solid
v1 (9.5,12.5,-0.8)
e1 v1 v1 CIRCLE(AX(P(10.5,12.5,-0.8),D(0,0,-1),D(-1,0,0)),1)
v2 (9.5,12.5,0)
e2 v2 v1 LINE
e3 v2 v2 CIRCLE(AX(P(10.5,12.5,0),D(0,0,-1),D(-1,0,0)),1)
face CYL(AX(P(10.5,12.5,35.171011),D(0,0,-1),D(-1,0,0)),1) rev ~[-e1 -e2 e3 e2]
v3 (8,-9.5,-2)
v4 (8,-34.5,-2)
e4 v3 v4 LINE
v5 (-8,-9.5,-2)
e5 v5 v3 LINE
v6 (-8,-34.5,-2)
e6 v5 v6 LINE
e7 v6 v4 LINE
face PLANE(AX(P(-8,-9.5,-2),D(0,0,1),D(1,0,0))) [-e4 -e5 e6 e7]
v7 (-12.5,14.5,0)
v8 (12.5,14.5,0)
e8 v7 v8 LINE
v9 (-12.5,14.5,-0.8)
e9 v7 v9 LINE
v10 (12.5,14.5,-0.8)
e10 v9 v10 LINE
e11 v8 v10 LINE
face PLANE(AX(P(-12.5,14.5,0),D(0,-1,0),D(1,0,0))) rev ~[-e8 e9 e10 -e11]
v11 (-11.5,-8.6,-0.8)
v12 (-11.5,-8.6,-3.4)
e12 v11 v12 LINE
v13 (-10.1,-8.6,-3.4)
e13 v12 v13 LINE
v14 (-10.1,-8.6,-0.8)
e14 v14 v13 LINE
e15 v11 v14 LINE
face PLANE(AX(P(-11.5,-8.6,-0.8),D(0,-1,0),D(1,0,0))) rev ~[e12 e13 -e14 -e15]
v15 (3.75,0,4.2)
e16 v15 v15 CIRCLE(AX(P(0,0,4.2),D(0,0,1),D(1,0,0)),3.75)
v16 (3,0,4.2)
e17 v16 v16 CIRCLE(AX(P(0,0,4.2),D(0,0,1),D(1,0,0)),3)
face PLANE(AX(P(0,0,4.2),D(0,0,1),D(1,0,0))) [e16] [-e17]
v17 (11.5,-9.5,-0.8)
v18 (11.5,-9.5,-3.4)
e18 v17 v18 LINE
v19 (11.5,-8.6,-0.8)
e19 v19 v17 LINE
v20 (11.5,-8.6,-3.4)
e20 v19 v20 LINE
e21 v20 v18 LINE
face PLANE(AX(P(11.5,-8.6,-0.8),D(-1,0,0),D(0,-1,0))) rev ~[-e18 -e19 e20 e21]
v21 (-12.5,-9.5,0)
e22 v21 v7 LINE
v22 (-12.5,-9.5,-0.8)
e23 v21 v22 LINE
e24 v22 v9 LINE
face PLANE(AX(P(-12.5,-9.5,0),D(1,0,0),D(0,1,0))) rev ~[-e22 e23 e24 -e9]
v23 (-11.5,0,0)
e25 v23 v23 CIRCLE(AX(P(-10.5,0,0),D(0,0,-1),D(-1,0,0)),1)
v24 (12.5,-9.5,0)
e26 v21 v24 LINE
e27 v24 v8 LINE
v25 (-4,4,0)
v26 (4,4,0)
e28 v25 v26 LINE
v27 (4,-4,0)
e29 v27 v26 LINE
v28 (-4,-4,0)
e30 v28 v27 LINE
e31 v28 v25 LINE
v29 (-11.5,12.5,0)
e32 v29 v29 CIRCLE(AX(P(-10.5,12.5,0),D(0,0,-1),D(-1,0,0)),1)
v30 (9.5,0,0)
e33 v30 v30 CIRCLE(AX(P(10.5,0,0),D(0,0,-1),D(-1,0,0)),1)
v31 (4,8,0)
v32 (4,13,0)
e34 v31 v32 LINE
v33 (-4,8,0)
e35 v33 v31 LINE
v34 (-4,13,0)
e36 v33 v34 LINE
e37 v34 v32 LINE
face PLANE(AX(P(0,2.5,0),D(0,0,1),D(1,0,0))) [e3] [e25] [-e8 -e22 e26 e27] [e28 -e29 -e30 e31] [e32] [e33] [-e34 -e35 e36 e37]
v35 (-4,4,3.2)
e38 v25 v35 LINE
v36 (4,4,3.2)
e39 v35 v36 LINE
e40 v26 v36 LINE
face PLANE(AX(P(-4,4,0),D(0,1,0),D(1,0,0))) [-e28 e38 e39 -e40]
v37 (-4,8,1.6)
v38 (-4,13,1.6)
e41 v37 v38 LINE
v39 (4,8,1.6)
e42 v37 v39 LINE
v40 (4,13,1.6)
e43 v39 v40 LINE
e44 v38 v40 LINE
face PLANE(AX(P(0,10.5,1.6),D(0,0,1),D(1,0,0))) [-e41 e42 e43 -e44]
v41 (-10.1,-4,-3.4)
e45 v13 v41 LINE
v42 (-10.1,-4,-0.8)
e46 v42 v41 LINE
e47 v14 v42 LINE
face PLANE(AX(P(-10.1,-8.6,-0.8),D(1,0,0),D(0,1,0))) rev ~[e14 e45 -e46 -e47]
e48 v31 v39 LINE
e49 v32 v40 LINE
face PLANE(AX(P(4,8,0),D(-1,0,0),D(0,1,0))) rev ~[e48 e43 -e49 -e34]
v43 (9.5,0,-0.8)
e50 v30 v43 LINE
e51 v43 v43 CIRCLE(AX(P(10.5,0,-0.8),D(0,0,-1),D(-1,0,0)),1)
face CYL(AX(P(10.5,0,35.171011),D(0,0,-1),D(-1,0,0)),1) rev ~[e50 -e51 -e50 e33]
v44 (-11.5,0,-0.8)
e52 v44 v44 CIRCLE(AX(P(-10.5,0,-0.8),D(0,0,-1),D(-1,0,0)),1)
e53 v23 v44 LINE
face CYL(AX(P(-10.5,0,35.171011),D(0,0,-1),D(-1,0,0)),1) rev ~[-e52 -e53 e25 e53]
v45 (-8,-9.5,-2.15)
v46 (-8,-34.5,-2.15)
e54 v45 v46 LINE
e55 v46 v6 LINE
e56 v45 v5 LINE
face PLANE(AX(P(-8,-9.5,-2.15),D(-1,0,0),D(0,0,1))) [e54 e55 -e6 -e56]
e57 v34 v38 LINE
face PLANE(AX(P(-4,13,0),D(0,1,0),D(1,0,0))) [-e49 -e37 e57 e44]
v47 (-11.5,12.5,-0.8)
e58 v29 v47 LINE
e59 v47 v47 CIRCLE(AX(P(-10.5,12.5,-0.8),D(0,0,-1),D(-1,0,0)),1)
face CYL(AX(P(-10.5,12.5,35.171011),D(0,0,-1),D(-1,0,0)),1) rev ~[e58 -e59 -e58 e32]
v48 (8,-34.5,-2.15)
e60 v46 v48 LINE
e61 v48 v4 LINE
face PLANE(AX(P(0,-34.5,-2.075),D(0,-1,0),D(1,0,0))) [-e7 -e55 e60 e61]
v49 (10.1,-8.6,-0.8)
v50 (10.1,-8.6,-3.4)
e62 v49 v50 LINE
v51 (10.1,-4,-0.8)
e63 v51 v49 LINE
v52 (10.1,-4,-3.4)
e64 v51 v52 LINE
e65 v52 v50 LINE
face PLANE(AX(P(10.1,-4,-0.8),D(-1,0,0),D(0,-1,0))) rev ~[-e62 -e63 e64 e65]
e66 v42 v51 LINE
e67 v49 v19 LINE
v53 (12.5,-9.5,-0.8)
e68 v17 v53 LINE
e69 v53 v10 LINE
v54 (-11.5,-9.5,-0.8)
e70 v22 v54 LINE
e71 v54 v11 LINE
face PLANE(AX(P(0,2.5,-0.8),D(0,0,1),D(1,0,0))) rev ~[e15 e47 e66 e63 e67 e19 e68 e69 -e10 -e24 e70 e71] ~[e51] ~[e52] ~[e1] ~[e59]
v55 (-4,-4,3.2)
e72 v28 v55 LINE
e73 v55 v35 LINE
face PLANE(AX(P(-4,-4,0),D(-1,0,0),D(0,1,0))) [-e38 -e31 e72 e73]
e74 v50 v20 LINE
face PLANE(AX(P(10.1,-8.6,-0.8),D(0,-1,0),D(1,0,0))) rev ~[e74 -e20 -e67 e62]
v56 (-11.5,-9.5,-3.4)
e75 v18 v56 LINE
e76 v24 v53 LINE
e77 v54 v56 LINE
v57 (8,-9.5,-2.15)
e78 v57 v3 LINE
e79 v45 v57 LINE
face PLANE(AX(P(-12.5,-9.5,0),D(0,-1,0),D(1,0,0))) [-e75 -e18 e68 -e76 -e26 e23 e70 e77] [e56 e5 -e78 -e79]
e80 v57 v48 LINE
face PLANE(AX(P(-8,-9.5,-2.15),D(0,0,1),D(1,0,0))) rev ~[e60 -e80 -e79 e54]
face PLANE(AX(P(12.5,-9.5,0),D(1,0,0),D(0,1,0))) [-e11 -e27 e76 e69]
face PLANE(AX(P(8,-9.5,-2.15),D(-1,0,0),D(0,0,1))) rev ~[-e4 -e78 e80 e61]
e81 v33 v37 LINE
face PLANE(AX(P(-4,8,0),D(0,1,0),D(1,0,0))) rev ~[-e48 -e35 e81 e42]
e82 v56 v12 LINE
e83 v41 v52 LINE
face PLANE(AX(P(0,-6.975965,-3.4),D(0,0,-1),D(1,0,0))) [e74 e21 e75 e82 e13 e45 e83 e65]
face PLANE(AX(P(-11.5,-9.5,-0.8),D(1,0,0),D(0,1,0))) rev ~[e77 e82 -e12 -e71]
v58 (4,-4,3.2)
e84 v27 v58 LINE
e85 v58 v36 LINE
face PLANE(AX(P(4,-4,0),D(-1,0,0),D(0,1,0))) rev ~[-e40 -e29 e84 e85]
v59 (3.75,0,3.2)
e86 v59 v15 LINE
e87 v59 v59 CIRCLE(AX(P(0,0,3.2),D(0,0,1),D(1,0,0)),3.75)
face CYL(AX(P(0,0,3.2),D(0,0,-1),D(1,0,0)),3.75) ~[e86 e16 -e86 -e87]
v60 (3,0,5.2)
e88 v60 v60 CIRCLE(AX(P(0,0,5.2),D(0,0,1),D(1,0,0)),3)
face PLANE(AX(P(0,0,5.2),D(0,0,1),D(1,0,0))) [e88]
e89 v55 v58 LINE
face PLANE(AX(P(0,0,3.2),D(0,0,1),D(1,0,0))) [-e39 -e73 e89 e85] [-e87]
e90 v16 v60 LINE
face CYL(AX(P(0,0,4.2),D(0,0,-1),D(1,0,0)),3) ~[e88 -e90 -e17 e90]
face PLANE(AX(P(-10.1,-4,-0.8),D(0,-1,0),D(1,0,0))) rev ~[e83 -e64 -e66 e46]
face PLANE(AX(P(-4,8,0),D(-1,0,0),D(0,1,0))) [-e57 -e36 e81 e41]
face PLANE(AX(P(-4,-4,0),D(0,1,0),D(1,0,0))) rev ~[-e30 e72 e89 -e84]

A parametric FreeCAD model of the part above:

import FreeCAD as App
import Part
import Sketcher

V = App.Vector

doc = App.newDocument("Part")
body = doc.addObject("PartDesign::Body", "Body")

# Sketch on XY plane
sketch1 = body.newObject("Sketcher::SketchObject", "Sketch")
sketch1.AttachmentSupport = (doc.getObject("XY_Plane"), [""])
sketch1.MapMode = "FlatFace"
sketch1.addGeometry(Part.LineSegment(V(-12.5, 14.5, 0), V(-12.5, -9.5, 0)), False)
sketch1.addGeometry(Part.LineSegment(V(-12.5, -9.5, 0), V(12.5, -9.5, 0)), False)
sketch1.addGeometry(Part.LineSegment(V(12.5, -9.5, 0), V(12.5, 14.5, 0)), False)
sketch1.addGeometry(Part.LineSegment(V(12.5, 14.5, 0), V(-12.5, 14.5, 0)), False)
sketch1.addConstraint(Sketcher.Constraint("Coincident", 0, 2, 1, 1))
sketch1.addConstraint(Sketcher.Constraint("Coincident", 1, 2, 2, 1))
sketch1.addConstraint(Sketcher.Constraint("Coincident", 2, 2, 3, 1))
sketch1.addConstraint(Sketcher.Constraint("Coincident", 3, 2, 0, 1))
sketch1.addConstraint(Sketcher.Constraint("Vertical", 0))
sketch1.addConstraint(Sketcher.Constraint("Horizontal", 1))
sketch1.addConstraint(Sketcher.Constraint("Vertical", 2))
sketch1.addConstraint(Sketcher.Constraint("Horizontal", 3))
sketch1.addConstraint(Sketcher.Constraint("DistanceX", 1, 1, 1, 2, 25.0))
sketch1.addConstraint(Sketcher.Constraint("DistanceY", 0, 2, 0, 1, 24.0))
sketch1.addConstraint(Sketcher.Constraint("DistanceX", 0, 2, -1, 1, 12.5))
sketch1.addConstraint(Sketcher.Constraint("DistanceY", 0, 2, -1, 1, 9.5))
pad1 = body.newObject("PartDesign::Pad", "Pad")
pad1.Profile = sketch1
pad1.Length = 0.8
pad1.Reversed = True

# Sketch on XY plane
sketch2 = body.newObject("Sketcher::SketchObject", "Sketch001")
sketch2.AttachmentSupport = (doc.getObject("XY_Plane"), [""])
sketch2.MapMode = "FlatFace"
sketch2.addGeometry(Part.LineSegment(V(-4, 4, 0), V(-4, -4, 0)), False)
sketch2.addGeometry(Part.LineSegment(V(-4, -4, 0), V(4, -4, 0)), False)
sketch2.addGeometry(Part.LineSegment(V(4, -4, 0), V(4, 4, 0)), False)
sketch2.addGeometry(Part.LineSegment(V(4, 4, 0), V(-4, 4, 0)), False)
sketch2.addConstraint(Sketcher.Constraint("Coincident", 0, 2, 1, 1))
sketch2.addConstraint(Sketcher.Constraint("Coincident", 1, 2, 2, 1))
sketch2.addConstraint(Sketcher.Constraint("Coincident", 2, 2, 3, 1))
sketch2.addConstraint(Sketcher.Constraint("Coincident", 3, 2, 0, 1))
sketch2.addConstraint(Sketcher.Constraint("Vertical", 0))
sketch2.addConstraint(Sketcher.Constraint("Horizontal", 1))
sketch2.addConstraint(Sketcher.Constraint("Vertical", 2))
sketch2.addConstraint(Sketcher.Constraint("Horizontal", 3))
sketch2.addConstraint(Sketcher.Constraint("Symmetric", 0, 2, 2, 2, -1, 1))
sketch2.addConstraint(Sketcher.Constraint("Equal", 3, 0))
sketch2.addConstraint(Sketcher.Constraint("DistanceX", 1, 1, 1, 2, 8.0))
pad2 = body.newObject("PartDesign::Pad", "Pad001")
pad2.Profile = sketch2
pad2.Length = 3.2

# Sketch on XY plane
sketch3 = body.newObject("Sketcher::SketchObject", "Sketch002")
sketch3.AttachmentSupport = (doc.getObject("XY_Plane"), [""])
sketch3.MapMode = "FlatFace"
sketch3.AttachmentOffset = App.Placement(V(0, 0, 3.2), App.Rotation())
sketch3.addGeometry(Part.Circle(V(0, 0, 0), V(0, 0, 1), 3.75), False)
sketch3.addConstraint(Sketcher.Constraint("Coincident", 0, 3, -1, 1))
sketch3.addConstraint(Sketcher.Constraint("Diameter", 0, 7.5))
pad3 = body.newObject("PartDesign::Pad", "Pad002")
pad3.Profile = sketch3
pad3.Length = 1

# Sketch on XY plane
sketch4 = body.newObject("Sketcher::SketchObject", "Sketch003")
sketch4.AttachmentSupport = (doc.getObject("XY_Plane"), [""])
sketch4.MapMode = "FlatFace"
sketch4.AttachmentOffset = App.Placement(V(0, 0, 4.2), App.Rotation())
sketch4.addGeometry(Part.Circle(V(0, 0, 0), V(0, 0, 1), 3), False)
sketch4.addConstraint(Sketcher.Constraint("Coincident", 0, 3, -1, 1))
sketch4.addConstraint(Sketcher.Constraint("Diameter", 0, 6.0))
pad4 = body.newObject("PartDesign::Pad", "Pad003")
pad4.Profile = sketch4
pad4.Length = 1

# Sketch on XY plane
sketch5 = body.newObject("Sketcher::SketchObject", "Sketch004")
sketch5.AttachmentSupport = (doc.getObject("XY_Plane"), [""])
sketch5.MapMode = "FlatFace"
sketch5.addGeometry(Part.Circle(V(-10.5, 12.5, 0), V(0, 0, 1), 1), False)
sketch5.addGeometry(Part.Circle(V(10.5, 12.5, 0), V(0, 0, 1), 1), False)
sketch5.addGeometry(Part.Circle(V(10.5, 0, 0), V(0, 0, 1), 1), False)
sketch5.addGeometry(Part.Circle(V(-10.5, 0, 0), V(0, 0, 1), 1), False)
sketch5.addConstraint(Sketcher.Constraint("Equal", 0, 1))
sketch5.addConstraint(Sketcher.Constraint("Equal", 1, 2))
sketch5.addConstraint(Sketcher.Constraint("Equal", 2, 3))
sketch5.addConstraint(Sketcher.Constraint("Symmetric", 2, 3, 3, 3, -1, 1))
sketch5.addConstraint(Sketcher.Constraint("Symmetric", 0, 3, 1, 3, -2))
sketch5.addConstraint(Sketcher.Constraint("PointOnObject", 2, 3, -1))
sketch5.addConstraint(Sketcher.Constraint("Vertical", 1, 3, 2, 3))
sketch5.addConstraint(Sketcher.Constraint("Diameter", 0, 2.0))
sketch5.addConstraint(Sketcher.Constraint("DistanceX", 0, 3, 1, 3, 21.0))
sketch5.addConstraint(Sketcher.Constraint("DistanceY", -1, 1, 0, 3, 12.5))
doc.recompute()
hole = body.newObject("PartDesign::Hole", "Hole")
hole.Profile = sketch5
hole.ThreadType = "None"
hole.Diameter = 2
hole.DepthType = "ThroughAll"

# Sketch on XY plane
sketch6 = body.newObject("Sketcher::SketchObject", "Sketch005")
sketch6.AttachmentSupport = (doc.getObject("XY_Plane"), [""])
sketch6.MapMode = "FlatFace"
sketch6.addGeometry(Part.LineSegment(V(-4, 13, 0), V(-4, 8, 0)), False)
sketch6.addGeometry(Part.LineSegment(V(-4, 8, 0), V(4, 8, 0)), False)
sketch6.addGeometry(Part.LineSegment(V(4, 8, 0), V(4, 13, 0)), False)
sketch6.addGeometry(Part.LineSegment(V(4, 13, 0), V(-4, 13, 0)), False)
sketch6.addConstraint(Sketcher.Constraint("Coincident", 0, 2, 1, 1))
sketch6.addConstraint(Sketcher.Constraint("Coincident", 1, 2, 2, 1))
sketch6.addConstraint(Sketcher.Constraint("Coincident", 2, 2, 3, 1))
sketch6.addConstraint(Sketcher.Constraint("Coincident", 3, 2, 0, 1))
sketch6.addConstraint(Sketcher.Constraint("Vertical", 0))
sketch6.addConstraint(Sketcher.Constraint("Horizontal", 1))
sketch6.addConstraint(Sketcher.Constraint("Vertical", 2))
sketch6.addConstraint(Sketcher.Constraint("Horizontal", 3))
sketch6.addConstraint(Sketcher.Constraint("DistanceX", 1, 1, 1, 2, 8.0))
sketch6.addConstraint(Sketcher.Constraint("DistanceY", 0, 2, 0, 1, 5.0))
sketch6.addConstraint(Sketcher.Constraint("DistanceX", 0, 2, -1, 1, 4.0))
sketch6.addConstraint(Sketcher.Constraint("DistanceY", -1, 1, 0, 2, 8.0))
pad5 = body.newObject("PartDesign::Pad", "Pad004")
pad5.Profile = sketch6
pad5.Length = 1.6

# Sketch on XY plane
sketch7 = body.newObject("Sketcher::SketchObject", "Sketch006")
sketch7.AttachmentSupport = (doc.getObject("XY_Plane"), [""])
sketch7.MapMode = "FlatFace"
sketch7.AttachmentOffset = App.Placement(V(0, 0, -0.8), App.Rotation())
sketch7.addGeometry(Part.LineSegment(V(11.5, -9.5, 0), V(-11.5, -9.5, 0)), False)
sketch7.addGeometry(Part.LineSegment(V(-11.5, -9.5, 0), V(-11.5, -8.6, 0)), False)
sketch7.addGeometry(Part.LineSegment(V(-11.5, -8.6, 0), V(-10.1, -8.6, 0)), False)
sketch7.addGeometry(Part.LineSegment(V(-10.1, -8.6, 0), V(-10.1, -4, 0)), False)
sketch7.addGeometry(Part.LineSegment(V(-10.1, -4, 0), V(10.1, -4, 0)), False)
sketch7.addGeometry(Part.LineSegment(V(10.1, -4, 0), V(10.1, -8.6, 0)), False)
sketch7.addGeometry(Part.LineSegment(V(10.1, -8.6, 0), V(11.5, -8.6, 0)), False)
sketch7.addGeometry(Part.LineSegment(V(11.5, -8.6, 0), V(11.5, -9.5, 0)), False)
sketch7.addConstraint(Sketcher.Constraint("Coincident", 0, 2, 1, 1))
sketch7.addConstraint(Sketcher.Constraint("Coincident", 1, 2, 2, 1))
sketch7.addConstraint(Sketcher.Constraint("Coincident", 2, 2, 3, 1))
sketch7.addConstraint(Sketcher.Constraint("Coincident", 3, 2, 4, 1))
sketch7.addConstraint(Sketcher.Constraint("Coincident", 4, 2, 5, 1))
sketch7.addConstraint(Sketcher.Constraint("Coincident", 5, 2, 6, 1))
sketch7.addConstraint(Sketcher.Constraint("Coincident", 6, 2, 7, 1))
sketch7.addConstraint(Sketcher.Constraint("Coincident", 7, 2, 0, 1))
sketch7.addConstraint(Sketcher.Constraint("Horizontal", 0))
sketch7.addConstraint(Sketcher.Constraint("Vertical", 1))
sketch7.addConstraint(Sketcher.Constraint("Horizontal", 2))
sketch7.addConstraint(Sketcher.Constraint("Vertical", 3))
sketch7.addConstraint(Sketcher.Constraint("Horizontal", 4))
sketch7.addConstraint(Sketcher.Constraint("Vertical", 5))
sketch7.addConstraint(Sketcher.Constraint("Horizontal", 6))
sketch7.addConstraint(Sketcher.Constraint("Vertical", 7))
sketch7.addConstraint(Sketcher.Constraint("Symmetric", 2, 2, 5, 2, -2))
sketch7.addConstraint(Sketcher.Constraint("Equal", 2, 6))
sketch7.addConstraint(Sketcher.Constraint("DistanceX", 0, 2, 0, 1, 23.0))
sketch7.addConstraint(Sketcher.Constraint("DistanceX", 2, 1, 2, 2, 1.4))
sketch7.addConstraint(Sketcher.Constraint("DistanceY", 1, 1, 1, 2, 0.9))
sketch7.addConstraint(Sketcher.Constraint("DistanceY", 3, 1, 3, 2, 4.6))
sketch7.addConstraint(Sketcher.Constraint("DistanceY", 3, 2, -1, 1, 4.0))
pad6 = body.newObject("PartDesign::Pad", "Pad005")
pad6.Profile = sketch7
pad6.Length = 2.6
pad6.Reversed = True

# Sketch on XZ plane
sketch8 = body.newObject("Sketcher::SketchObject", "Sketch007")
sketch8.AttachmentSupport = (doc.getObject("XZ_Plane"), [""])
sketch8.MapMode = "FlatFace"
sketch8.AttachmentOffset = App.Placement(V(0, 0, 9.5), App.Rotation())
sketch8.addGeometry(Part.LineSegment(V(-8, -2, 0), V(-8, -2.15, 0)), False)
sketch8.addGeometry(Part.LineSegment(V(-8, -2.15, 0), V(8, -2.15, 0)), False)
sketch8.addGeometry(Part.LineSegment(V(8, -2.15, 0), V(8, -2, 0)), False)
sketch8.addGeometry(Part.LineSegment(V(8, -2, 0), V(-8, -2, 0)), False)
sketch8.addConstraint(Sketcher.Constraint("Coincident", 0, 2, 1, 1))
sketch8.addConstraint(Sketcher.Constraint("Coincident", 1, 2, 2, 1))
sketch8.addConstraint(Sketcher.Constraint("Coincident", 2, 2, 3, 1))
sketch8.addConstraint(Sketcher.Constraint("Coincident", 3, 2, 0, 1))
sketch8.addConstraint(Sketcher.Constraint("Vertical", 0))
sketch8.addConstraint(Sketcher.Constraint("Horizontal", 1))
sketch8.addConstraint(Sketcher.Constraint("Vertical", 2))
sketch8.addConstraint(Sketcher.Constraint("Horizontal", 3))
sketch8.addConstraint(Sketcher.Constraint("DistanceX", 1, 1, 1, 2, 16.0))
sketch8.addConstraint(Sketcher.Constraint("DistanceX", 0, 2, -1, 1, 8.0))
sketch8.addConstraint(Sketcher.Constraint("DistanceY", 2, 2, -1, 1, 2.0))
sketch8.addConstraint(Sketcher.Constraint("DistanceY", 0, 2, 0, 1, 0.15))
pad7 = body.newObject("PartDesign::Pad", "Pad006")
pad7.Profile = sketch8
pad7.Length = 25

doc.recompute()
